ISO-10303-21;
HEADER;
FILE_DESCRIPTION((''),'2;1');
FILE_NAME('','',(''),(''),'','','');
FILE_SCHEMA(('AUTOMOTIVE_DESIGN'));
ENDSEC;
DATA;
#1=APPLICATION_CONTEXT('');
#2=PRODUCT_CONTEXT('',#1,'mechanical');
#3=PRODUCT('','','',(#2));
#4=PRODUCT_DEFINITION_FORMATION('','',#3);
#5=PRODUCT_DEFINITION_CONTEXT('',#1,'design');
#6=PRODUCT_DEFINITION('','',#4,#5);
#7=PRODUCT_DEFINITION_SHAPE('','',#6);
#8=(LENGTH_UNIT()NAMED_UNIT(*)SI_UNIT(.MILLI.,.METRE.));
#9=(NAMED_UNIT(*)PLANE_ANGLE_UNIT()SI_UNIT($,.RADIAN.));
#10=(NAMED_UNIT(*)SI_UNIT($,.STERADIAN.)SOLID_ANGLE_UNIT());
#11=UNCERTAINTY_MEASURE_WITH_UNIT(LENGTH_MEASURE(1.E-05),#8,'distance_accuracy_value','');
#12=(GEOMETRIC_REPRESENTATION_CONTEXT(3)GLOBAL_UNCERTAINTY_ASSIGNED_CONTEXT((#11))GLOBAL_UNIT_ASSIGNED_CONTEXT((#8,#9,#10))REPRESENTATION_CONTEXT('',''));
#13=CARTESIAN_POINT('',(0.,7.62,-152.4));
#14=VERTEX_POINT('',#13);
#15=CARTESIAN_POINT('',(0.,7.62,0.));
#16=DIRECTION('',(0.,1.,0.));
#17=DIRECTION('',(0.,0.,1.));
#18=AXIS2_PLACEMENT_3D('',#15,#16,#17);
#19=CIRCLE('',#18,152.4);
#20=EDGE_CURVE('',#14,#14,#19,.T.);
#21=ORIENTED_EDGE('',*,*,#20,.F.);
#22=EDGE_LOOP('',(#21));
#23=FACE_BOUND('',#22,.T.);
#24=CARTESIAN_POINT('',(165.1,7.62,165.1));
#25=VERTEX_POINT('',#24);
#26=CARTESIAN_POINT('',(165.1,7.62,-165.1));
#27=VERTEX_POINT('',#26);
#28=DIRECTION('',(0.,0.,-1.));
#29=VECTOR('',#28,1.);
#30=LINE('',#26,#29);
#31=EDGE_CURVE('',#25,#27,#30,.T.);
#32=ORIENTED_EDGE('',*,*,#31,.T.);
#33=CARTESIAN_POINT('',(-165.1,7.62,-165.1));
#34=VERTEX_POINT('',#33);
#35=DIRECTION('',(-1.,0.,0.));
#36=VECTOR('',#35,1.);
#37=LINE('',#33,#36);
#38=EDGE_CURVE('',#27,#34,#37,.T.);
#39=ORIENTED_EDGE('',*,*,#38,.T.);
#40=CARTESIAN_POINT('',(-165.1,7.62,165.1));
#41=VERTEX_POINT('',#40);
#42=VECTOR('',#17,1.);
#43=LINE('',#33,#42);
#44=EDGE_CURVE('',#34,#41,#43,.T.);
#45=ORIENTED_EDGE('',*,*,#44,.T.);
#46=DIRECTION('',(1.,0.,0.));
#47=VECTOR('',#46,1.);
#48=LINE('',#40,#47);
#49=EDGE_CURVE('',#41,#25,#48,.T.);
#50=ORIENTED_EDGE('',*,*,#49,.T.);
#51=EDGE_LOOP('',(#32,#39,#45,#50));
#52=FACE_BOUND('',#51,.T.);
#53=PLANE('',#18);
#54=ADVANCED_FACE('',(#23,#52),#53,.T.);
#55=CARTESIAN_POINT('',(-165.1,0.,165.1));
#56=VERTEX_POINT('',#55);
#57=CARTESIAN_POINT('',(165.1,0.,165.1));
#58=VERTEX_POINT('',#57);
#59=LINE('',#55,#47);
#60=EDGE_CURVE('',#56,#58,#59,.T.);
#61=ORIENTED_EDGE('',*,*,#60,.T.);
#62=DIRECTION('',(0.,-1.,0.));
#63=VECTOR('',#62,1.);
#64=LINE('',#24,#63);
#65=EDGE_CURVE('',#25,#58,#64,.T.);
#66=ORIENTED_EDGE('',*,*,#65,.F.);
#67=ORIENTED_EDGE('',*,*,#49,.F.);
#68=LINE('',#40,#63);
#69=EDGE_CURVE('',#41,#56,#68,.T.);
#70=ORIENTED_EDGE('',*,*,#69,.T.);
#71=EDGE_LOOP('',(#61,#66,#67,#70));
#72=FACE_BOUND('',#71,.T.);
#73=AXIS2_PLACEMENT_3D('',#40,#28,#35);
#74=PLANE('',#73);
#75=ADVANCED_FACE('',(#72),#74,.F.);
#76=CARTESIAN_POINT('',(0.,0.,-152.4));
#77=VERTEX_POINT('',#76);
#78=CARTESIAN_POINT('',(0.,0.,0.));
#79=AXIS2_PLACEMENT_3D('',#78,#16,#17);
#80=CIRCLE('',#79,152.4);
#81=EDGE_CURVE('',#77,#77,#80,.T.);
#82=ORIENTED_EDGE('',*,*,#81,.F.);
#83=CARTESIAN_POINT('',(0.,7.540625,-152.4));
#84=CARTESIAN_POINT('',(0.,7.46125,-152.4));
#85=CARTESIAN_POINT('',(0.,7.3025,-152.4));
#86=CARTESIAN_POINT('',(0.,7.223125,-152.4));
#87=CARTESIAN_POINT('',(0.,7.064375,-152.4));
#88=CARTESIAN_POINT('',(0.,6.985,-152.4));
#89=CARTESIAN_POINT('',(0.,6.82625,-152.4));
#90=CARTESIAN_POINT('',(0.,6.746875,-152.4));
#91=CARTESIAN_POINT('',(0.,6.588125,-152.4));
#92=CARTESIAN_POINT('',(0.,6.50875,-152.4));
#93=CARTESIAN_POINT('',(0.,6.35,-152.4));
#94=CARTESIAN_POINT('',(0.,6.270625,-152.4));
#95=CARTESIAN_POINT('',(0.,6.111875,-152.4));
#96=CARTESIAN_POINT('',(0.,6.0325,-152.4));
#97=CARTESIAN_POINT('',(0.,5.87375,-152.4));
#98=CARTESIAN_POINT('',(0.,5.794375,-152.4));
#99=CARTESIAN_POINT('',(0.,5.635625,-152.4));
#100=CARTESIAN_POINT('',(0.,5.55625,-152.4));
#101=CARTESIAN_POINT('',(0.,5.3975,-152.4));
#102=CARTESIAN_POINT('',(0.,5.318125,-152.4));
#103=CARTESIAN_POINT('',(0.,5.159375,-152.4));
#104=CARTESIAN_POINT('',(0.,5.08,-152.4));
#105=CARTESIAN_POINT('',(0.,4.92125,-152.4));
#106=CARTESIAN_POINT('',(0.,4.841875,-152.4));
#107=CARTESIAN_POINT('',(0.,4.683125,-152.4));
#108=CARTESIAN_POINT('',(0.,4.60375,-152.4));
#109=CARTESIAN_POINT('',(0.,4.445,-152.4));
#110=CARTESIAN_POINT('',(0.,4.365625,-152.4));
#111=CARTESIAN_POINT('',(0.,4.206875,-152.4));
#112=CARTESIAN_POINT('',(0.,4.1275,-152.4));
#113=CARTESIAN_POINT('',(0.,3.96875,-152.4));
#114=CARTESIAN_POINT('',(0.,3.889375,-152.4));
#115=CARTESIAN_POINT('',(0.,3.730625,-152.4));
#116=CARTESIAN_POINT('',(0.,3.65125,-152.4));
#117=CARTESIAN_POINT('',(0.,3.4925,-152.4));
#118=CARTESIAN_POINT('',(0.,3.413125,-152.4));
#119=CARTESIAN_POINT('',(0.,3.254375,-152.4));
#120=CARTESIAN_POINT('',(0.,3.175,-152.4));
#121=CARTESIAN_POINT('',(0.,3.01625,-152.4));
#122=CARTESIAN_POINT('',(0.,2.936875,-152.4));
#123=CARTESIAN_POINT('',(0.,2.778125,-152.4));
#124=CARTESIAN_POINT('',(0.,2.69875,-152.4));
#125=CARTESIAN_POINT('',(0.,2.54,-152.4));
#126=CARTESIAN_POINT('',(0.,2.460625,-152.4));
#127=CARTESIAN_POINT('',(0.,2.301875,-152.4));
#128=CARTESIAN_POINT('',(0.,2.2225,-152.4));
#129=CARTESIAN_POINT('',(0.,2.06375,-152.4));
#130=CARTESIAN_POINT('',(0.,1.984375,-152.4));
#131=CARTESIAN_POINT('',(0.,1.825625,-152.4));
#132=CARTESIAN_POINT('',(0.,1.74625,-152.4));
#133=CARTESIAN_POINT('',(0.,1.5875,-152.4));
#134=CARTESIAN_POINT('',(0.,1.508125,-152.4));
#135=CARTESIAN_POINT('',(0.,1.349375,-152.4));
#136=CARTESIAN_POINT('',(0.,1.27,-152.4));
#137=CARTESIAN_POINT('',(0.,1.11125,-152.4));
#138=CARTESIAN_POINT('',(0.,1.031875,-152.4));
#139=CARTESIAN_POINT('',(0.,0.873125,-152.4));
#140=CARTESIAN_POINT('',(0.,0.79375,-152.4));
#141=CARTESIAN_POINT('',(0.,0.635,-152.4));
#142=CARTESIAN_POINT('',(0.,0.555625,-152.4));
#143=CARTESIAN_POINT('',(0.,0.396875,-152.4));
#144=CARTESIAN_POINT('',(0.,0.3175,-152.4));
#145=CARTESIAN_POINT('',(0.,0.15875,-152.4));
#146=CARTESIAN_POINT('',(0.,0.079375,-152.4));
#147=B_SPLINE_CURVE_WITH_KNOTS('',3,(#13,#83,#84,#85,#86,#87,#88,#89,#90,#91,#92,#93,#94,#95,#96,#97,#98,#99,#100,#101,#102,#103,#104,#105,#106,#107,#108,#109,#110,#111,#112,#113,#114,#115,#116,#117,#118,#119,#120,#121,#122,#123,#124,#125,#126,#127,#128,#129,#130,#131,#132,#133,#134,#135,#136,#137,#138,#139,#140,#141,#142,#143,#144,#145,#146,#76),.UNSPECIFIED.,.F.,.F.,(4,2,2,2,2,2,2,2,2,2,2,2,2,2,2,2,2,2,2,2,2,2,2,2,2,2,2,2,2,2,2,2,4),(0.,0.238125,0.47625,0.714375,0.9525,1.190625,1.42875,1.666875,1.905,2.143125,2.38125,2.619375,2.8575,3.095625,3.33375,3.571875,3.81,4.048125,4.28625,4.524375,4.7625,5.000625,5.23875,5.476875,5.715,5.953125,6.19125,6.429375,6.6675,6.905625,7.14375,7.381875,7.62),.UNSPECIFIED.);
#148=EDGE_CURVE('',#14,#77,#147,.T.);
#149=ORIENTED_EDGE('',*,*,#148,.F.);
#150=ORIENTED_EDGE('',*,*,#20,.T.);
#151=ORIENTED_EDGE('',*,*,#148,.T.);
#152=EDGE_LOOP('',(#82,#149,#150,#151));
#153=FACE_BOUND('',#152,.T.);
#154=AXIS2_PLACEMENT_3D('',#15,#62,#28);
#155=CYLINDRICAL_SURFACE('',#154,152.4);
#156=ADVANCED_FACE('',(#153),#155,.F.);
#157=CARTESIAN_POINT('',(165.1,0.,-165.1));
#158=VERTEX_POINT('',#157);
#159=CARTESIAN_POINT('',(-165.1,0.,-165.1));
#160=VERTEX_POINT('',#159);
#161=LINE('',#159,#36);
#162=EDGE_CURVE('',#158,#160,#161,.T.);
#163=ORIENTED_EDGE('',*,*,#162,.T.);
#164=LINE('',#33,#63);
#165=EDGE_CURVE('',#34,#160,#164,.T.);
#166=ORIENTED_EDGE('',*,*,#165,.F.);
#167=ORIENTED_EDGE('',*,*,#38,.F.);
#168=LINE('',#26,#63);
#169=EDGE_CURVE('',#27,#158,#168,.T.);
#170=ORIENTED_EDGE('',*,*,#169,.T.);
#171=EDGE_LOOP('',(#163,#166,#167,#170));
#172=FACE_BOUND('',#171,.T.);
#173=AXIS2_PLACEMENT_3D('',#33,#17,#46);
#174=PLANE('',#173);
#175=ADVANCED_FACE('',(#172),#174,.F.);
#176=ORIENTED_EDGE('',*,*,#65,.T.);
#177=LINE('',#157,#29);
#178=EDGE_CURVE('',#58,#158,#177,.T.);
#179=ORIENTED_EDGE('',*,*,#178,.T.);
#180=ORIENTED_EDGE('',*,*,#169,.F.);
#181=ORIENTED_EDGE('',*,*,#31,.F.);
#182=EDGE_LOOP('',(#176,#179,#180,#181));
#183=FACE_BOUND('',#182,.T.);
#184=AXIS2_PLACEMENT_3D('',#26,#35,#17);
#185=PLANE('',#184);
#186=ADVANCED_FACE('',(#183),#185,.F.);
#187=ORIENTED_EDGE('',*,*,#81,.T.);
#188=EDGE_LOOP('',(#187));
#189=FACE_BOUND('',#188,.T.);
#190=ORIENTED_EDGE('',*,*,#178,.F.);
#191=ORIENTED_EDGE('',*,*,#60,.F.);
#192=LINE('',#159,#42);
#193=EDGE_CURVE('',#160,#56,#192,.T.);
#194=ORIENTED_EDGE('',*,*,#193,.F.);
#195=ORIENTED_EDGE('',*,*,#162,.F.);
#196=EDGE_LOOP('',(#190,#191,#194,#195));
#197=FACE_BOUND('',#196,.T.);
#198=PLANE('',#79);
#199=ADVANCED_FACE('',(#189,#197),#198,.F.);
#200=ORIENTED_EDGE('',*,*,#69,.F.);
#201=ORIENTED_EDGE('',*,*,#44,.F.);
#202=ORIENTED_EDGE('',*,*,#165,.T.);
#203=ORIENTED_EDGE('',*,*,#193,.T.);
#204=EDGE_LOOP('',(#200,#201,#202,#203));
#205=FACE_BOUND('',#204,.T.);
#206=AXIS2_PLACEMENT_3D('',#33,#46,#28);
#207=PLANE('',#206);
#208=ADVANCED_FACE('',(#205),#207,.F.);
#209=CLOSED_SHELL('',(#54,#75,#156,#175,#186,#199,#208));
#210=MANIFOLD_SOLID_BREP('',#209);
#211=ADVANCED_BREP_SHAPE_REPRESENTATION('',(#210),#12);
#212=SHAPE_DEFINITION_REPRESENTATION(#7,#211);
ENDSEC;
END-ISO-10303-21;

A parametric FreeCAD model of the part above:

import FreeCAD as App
import Part
import Sketcher

V = App.Vector
Q = App.Units.Quantity

doc = App.newDocument("Part")
body = doc.addObject("PartDesign::Body", "Body")

# Sketch on XZ plane
sketch1 = body.newObject("Sketcher::SketchObject", "Sketch")
sketch1.AttachmentSupport = (doc.getObject("XZ_Plane"), [""])
sketch1.MapMode = "FlatFace"
sketch1.addGeometry(Part.LineSegment(V(-165, -165, 0), V(-165, 165, 0)), False)
sketch1.addGeometry(Part.LineSegment(V(-165, 165, 0), V(165, 165, 0)), False)
sketch1.addGeometry(Part.LineSegment(V(165, 165, 0), V(165, -165, 0)), False)
sketch1.addGeometry(Part.LineSegment(V(165, -165, 0), V(-165, -165, 0)), False)
sketch1.addGeometry(Part.Circle(V(0, 0, 0), V(0, 0, 1), 152), False)
sketch1.addConstraint(Sketcher.Constraint("Coincident", 0, 2, 1, 1))
sketch1.addConstraint(Sketcher.Constraint("Coincident", 1, 2, 2, 1))
sketch1.addConstraint(Sketcher.Constraint("Coincident", 2, 2, 3, 1))
sketch1.addConstraint(Sketcher.Constraint("Coincident", 3, 2, 0, 1))
sketch1.addConstraint(Sketcher.Constraint("Vertical", 0))
sketch1.addConstraint(Sketcher.Constraint("Horizontal", 1))
sketch1.addConstraint(Sketcher.Constraint("Vertical", 2))
sketch1.addConstraint(Sketcher.Constraint("Horizontal", 3))
sketch1.addConstraint(Sketcher.Constraint("Coincident", 4, 3, -1, 1))
sketch1.addConstraint(Sketcher.Constraint("Symmetric", 0, 2, 2, 2, -1, 1))
sketch1.addConstraint(Sketcher.Constraint("Equal", 3, 0))
sketch1.addConstraint(Sketcher.Constraint("Diameter", 4, Q("12 in")))
sketch1.addConstraint(Sketcher.Constraint("DistanceX", 1, 1, 1, 2, Q("13 in")))
pad1 = body.newObject("PartDesign::Pad", "Pad")
pad1.Profile = sketch1
pad1.Length = Q("0.3 in")
pad1.Reversed = True

doc.recompute()
